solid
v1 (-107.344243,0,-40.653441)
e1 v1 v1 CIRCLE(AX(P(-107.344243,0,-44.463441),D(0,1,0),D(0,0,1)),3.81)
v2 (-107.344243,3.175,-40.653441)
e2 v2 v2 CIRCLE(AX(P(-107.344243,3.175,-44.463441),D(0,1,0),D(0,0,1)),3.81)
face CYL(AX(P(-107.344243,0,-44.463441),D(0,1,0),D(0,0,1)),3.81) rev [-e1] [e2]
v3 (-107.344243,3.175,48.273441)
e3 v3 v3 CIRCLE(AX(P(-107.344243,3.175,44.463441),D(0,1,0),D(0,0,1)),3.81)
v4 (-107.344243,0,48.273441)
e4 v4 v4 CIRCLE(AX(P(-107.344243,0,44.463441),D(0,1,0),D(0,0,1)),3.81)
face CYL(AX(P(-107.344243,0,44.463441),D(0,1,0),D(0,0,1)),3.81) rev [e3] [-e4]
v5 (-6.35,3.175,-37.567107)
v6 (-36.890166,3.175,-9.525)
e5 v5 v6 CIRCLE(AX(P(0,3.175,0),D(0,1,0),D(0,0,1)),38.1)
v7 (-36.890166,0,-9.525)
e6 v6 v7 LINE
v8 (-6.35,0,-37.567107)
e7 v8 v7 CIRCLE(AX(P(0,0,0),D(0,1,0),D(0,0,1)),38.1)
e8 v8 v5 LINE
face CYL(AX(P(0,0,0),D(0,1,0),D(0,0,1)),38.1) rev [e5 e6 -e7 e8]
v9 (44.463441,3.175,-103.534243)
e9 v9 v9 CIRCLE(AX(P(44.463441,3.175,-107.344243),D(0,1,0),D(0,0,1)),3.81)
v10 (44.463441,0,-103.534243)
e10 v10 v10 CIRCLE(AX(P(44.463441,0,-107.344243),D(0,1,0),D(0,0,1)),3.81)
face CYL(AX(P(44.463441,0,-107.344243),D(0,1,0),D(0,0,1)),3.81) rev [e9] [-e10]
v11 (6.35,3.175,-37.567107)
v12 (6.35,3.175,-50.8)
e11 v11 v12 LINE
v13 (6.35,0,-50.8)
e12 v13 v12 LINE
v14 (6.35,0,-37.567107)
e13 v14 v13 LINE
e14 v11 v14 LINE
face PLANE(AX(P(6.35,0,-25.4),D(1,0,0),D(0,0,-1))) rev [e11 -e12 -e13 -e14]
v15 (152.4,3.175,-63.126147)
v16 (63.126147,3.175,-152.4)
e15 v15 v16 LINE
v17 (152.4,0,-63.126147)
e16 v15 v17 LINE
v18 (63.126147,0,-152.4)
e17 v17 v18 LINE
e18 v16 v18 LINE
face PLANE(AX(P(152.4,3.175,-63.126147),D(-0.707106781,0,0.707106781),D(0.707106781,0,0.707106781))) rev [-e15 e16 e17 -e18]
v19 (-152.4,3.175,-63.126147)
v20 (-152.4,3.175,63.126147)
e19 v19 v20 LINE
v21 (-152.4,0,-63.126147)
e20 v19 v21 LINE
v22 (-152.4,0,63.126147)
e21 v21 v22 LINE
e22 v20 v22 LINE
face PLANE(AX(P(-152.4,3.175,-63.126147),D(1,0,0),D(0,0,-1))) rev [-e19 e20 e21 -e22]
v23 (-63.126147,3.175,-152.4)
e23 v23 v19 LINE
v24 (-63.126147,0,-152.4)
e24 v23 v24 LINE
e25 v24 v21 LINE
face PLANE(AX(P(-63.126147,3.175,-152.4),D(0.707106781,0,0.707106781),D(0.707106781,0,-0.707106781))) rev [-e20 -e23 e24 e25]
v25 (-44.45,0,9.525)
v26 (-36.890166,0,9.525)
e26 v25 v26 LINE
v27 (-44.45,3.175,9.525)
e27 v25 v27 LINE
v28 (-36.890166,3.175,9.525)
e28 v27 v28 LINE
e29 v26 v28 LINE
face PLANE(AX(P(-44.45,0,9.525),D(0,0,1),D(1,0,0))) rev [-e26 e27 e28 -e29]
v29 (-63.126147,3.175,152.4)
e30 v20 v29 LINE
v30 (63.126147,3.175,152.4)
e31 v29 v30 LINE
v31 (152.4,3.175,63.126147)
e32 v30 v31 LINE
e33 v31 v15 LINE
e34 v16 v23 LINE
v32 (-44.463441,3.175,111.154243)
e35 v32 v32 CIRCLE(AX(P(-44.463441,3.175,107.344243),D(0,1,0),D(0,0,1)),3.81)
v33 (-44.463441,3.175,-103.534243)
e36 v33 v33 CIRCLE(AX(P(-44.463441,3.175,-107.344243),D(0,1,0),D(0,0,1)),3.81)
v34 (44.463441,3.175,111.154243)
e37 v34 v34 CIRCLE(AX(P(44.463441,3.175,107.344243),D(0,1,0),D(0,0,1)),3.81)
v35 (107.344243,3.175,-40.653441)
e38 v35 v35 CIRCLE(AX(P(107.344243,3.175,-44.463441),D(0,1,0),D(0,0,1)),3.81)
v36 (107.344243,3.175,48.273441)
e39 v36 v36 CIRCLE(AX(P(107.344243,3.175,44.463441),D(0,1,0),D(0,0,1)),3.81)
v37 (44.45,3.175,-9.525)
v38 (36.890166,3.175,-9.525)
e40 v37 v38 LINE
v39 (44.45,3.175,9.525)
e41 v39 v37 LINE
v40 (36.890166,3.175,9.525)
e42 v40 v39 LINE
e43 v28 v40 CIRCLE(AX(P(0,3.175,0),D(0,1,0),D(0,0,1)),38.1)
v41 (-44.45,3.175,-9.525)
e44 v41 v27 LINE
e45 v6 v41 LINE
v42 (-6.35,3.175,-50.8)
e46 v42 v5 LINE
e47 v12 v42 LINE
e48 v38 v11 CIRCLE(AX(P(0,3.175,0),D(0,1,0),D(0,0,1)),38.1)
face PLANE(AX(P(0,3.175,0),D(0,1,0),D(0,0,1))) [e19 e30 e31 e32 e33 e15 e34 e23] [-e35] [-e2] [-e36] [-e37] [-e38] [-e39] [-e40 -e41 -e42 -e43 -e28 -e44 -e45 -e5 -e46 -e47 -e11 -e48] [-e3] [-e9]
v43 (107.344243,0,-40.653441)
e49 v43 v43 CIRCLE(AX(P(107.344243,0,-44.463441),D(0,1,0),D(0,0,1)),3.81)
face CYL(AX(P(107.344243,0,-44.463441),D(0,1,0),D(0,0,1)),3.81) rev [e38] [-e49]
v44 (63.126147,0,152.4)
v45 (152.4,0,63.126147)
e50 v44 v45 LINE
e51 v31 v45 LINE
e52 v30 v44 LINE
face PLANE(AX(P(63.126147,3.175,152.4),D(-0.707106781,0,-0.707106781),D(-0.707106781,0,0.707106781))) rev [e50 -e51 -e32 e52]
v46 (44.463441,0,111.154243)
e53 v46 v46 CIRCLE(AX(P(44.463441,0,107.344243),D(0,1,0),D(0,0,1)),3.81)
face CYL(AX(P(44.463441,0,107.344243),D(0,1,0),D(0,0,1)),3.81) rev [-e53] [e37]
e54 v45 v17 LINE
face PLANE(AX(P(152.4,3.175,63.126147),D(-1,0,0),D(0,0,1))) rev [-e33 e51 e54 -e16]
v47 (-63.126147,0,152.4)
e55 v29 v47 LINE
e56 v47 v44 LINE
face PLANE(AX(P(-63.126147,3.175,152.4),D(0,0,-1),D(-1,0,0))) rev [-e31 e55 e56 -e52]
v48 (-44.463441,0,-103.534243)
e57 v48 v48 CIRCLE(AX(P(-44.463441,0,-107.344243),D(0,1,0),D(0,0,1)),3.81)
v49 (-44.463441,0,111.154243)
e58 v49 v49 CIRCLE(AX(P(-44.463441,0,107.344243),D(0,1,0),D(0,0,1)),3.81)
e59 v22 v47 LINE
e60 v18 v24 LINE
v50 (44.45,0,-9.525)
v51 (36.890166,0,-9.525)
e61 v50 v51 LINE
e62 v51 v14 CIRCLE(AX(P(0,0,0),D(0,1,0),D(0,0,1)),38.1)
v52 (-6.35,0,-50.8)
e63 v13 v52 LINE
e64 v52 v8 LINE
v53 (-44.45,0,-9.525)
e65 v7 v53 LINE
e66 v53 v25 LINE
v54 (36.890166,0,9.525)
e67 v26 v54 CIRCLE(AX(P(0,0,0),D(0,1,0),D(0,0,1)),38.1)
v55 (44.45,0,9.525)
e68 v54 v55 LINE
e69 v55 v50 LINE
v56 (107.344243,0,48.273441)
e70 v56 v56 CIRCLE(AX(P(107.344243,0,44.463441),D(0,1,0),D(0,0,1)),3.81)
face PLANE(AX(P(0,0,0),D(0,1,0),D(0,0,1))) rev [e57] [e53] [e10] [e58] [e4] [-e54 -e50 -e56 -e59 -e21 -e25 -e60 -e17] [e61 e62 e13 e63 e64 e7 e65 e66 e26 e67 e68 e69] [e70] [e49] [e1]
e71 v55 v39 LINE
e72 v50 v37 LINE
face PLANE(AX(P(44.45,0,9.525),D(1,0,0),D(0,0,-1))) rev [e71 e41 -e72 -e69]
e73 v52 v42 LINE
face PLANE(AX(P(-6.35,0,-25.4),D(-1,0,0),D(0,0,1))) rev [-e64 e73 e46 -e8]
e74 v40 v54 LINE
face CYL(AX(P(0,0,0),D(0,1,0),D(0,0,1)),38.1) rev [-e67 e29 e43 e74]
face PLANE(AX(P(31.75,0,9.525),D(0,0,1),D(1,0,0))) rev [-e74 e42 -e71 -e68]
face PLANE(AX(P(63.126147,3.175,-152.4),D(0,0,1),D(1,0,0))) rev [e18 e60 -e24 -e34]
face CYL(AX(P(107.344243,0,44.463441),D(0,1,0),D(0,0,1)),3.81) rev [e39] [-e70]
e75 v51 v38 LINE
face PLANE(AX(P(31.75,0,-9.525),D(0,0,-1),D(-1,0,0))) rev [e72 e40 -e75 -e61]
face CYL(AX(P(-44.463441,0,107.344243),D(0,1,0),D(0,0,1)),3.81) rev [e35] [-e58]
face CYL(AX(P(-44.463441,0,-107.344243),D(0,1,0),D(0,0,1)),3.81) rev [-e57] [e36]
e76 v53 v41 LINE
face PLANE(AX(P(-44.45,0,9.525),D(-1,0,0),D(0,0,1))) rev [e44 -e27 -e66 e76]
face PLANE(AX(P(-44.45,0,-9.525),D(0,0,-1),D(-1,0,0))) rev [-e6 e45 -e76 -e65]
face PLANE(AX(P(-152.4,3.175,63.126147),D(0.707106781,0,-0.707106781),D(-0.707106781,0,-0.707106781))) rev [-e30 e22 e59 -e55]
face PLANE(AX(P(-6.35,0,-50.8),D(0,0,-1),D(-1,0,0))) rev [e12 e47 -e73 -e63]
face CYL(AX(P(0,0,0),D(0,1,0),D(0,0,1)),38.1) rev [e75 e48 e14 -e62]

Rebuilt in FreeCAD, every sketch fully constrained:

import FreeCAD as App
import Part
import Sketcher

V = App.Vector
Q = App.Units.Quantity

doc = App.newDocument("Part")
body = doc.addObject("PartDesign::Body", "Body")

sketch1 = doc.addObject("Sketcher::SketchObject", "Sketch")
body.addObject(sketch1)
sketch1.AttachmentSupport = (doc.XZ_Plane, [""])
sketch1.MapMode = "FlatFace"
sketch1.addGeometry(Part.LineSegment(V(63, -152, 0), V(-63, -152, 0)), False)
sketch1.addGeometry(Part.LineSegment(V(-63, -152, 0), V(-152, -63, 0)), False)
sketch1.addGeometry(Part.LineSegment(V(-152, -63, 0), V(-152, 63, 0)), False)
sketch1.addGeometry(Part.LineSegment(V(-152, 63, 0), V(-63, 152, 0)), False)
sketch1.addGeometry(Part.LineSegment(V(-63, 152, 0), V(63, 152, 0)), False)
sketch1.addGeometry(Part.LineSegment(V(63, 152, 0), V(152, 63, 0)), False)
sketch1.addGeometry(Part.LineSegment(V(152, 63, 0), V(152, -63, 0)), False)
sketch1.addGeometry(Part.LineSegment(V(152, -63, 0), V(63, -152, 0)), False)
sketch1.addConstraint(Sketcher.Constraint("Coincident", 0, 2, 1, 1))
sketch1.addConstraint(Sketcher.Constraint("Coincident", 1, 2, 2, 1))
sketch1.addConstraint(Sketcher.Constraint("Coincident", 2, 2, 3, 1))
sketch1.addConstraint(Sketcher.Constraint("Coincident", 3, 2, 4, 1))
sketch1.addConstraint(Sketcher.Constraint("Coincident", 4, 2, 5, 1))
sketch1.addConstraint(Sketcher.Constraint("Coincident", 5, 2, 6, 1))
sketch1.addConstraint(Sketcher.Constraint("Coincident", 6, 2, 7, 1))
sketch1.addConstraint(Sketcher.Constraint("Coincident", 7, 2, 0, 1))
sketch1.addConstraint(Sketcher.Constraint("Horizontal", 0))
sketch1.addConstraint(Sketcher.Constraint("Vertical", 2))
sketch1.addConstraint(Sketcher.Constraint("Horizontal", 4))
sketch1.addConstraint(Sketcher.Constraint("Vertical", 6))
sketch1.addConstraint(Sketcher.Constraint("Symmetric", 0, 2, 4, 2, -1, 1))
sketch1.addConstraint(Sketcher.Constraint("Symmetric", 1, 2, 5, 2, -1, 1))
sketch1.addConstraint(Sketcher.Constraint("Perpendicular", 1, 3))
sketch1.addConstraint(Sketcher.Constraint("Perpendicular", 5, 7))
sketch1.addConstraint(Sketcher.Constraint("Horizontal", 2, 2, 5, 2))
sketch1.addConstraint(Sketcher.Constraint("Horizontal", 1, 2, 6, 2))
sketch1.addConstraint(Sketcher.Constraint("Vertical", 0, 2, 3, 2))
sketch1.addConstraint(Sketcher.Constraint("Equal", 4, 2))
sketch1.addConstraint(Sketcher.Constraint("DistanceY", 0, 2, -1, 1, Q("6 in")))
sketch1.addConstraint(Sketcher.Constraint("DistanceX", 0, 2, 0, 1, 126.252294))
pad1 = doc.addObject("PartDesign::Pad", "Pad")
body.addObject(pad1)
pad1.Profile = sketch1
pad1.Length = Q("0.125 in")
pad1.Reversed = True

sketch2 = doc.addObject("Sketcher::SketchObject", "Sketch001")
body.addObject(sketch2)
sketch2.AttachmentSupport = (doc.XZ_Plane, [""])
sketch2.MapMode = "FlatFace"
sketch2.AttachmentOffset = App.Placement(V(0, 0, -0.125 * 25.4), App.Rotation())
sketch2.addGeometry(Part.Circle(V(0, 0, 0), V(0, 0, 1), 38), False)
sketch2.addConstraint(Sketcher.Constraint("Coincident", 0, 3, -1, 1))
sketch2.addConstraint(Sketcher.Constraint("Diameter", 0, Q("3 in")))
pocket1 = doc.addObject("PartDesign::Pocket", "Pocket")
body.addObject(pocket1)
pocket1.Profile = sketch2
pocket1.Type = "ThroughAll"
pocket1.Midplane = True

sketch3 = doc.addObject("Sketcher::SketchObject", "Sketch002")
body.addObject(sketch3)
sketch3.AttachmentSupport = (doc.XZ_Plane, [""])
sketch3.MapMode = "FlatFace"
sketch3.AttachmentOffset = App.Placement(V(0, 0, -0.125 * 25.4), App.Rotation())
sketch3.addGeometry(Part.Circle(V(44.5, 107.3, 0), V(0, 0, 1), 3.8), False)
sketch3.addGeometry(Part.Circle(V(-44.5, 107.3, 0), V(0, 0, 1), 3.8), False)
sketch3.addGeometry(Part.Circle(V(-107.3, 44.5, 0), V(0, 0, 1), 3.8), False)
sketch3.addGeometry(Part.Circle(V(-107.3, -44.5, 0), V(0, 0, 1), 3.8), False)
sketch3.addGeometry(Part.Circle(V(-44.5, -107.3, 0), V(0, 0, 1), 3.8), False)
sketch3.addGeometry(Part.Circle(V(44.5, -107.3, 0), V(0, 0, 1), 3.8), False)
sketch3.addGeometry(Part.Circle(V(107.3, -44.5, 0), V(0, 0, 1), 3.8), False)
sketch3.addGeometry(Part.Circle(V(107.3, 44.5, 0), V(0, 0, 1), 3.8), False)
sketch3.addConstraint(Sketcher.Constraint("Equal", 0, 1))
sketch3.addConstraint(Sketcher.Constraint("Equal", 1, 2))
sketch3.addConstraint(Sketcher.Constraint("Equal", 2, 3))
sketch3.addConstraint(Sketcher.Constraint("Equal", 3, 4))
sketch3.addConstraint(Sketcher.Constraint("Equal", 4, 5))
sketch3.addConstraint(Sketcher.Constraint("Equal", 5, 6))
sketch3.addConstraint(Sketcher.Constraint("Equal", 6, 7))
sketch3.addConstraint(Sketcher.Constraint("Symmetric", 0, 3, 4, 3, -1, 1))
sketch3.addConstraint(Sketcher.Constraint("Symmetric", 1, 3, 5, 3, -1, 1))
sketch3.addConstraint(Sketcher.Constraint("Symmetric", 2, 3, 6, 3, -1, 1))
sketch3.addConstraint(Sketcher.Constraint("Symmetric", 3, 3, 7, 3, -1, 1))
sketch3.addConstraint(Sketcher.Constraint("Symmetric", 0, 3, 1, 3, -2))
sketch3.addConstraint(Sketcher.Constraint("Symmetric", 3, 3, 6, 3, -2))
sketch3.addConstraint(Sketcher.Constraint("Diameter", 0, Q("0.3 in")))
sketch3.addConstraint(Sketcher.Constraint("DistanceX", 2, 3, 1, 3, 62.880802))
sketch3.addConstraint(Sketcher.Constraint("DistanceY", 2, 3, 1, 3, 62.880802))
sketch3.addConstraint(Sketcher.Constraint("DistanceX", -1, 1, 0, 3, 44.463441))
sketch3.addConstraint(Sketcher.Constraint("DistanceY", -1, 1, 2, 3, 44.463441))
pocket2 = doc.addObject("PartDesign::Pocket", "Pocket001")
body.addObject(pocket2)
pocket2.Profile = sketch3
pocket2.Type = "ThroughAll"
pocket2.Reversed = True

sketch4 = doc.addObject("Sketcher::SketchObject", "Sketch003")
body.addObject(sketch4)
sketch4.AttachmentSupport = (doc.XZ_Plane, [""])
sketch4.MapMode = "FlatFace"
sketch4.AttachmentOffset = App.Placement(V(0, 0, -0.125 * 25.4), App.Rotation())
sketch4.addGeometry(Part.LineSegment(V(-44, -10, 0), V(-44, 10, 0)), False)
sketch4.addGeometry(Part.LineSegment(V(-44, 10, 0), V(-32, 10, 0)), False)
sketch4.addGeometry(Part.LineSegment(V(-32, 10, 0), V(-32, -10, 0)), False)
sketch4.addGeometry(Part.LineSegment(V(-32, -10, 0), V(-44, -10, 0)), False)
sketch4.addGeometry(Part.LineSegment(V(32, -10, 0), V(32, 10, 0)), False)
sketch4.addGeometry(Part.LineSegment(V(32, 10, 0), V(44, 10, 0)), False)
sketch4.addGeometry(Part.LineSegment(V(44, 10, 0), V(44, -10, 0)), False)
sketch4.addGeometry(Part.LineSegment(V(44, -10, 0), V(32, -10, 0)), False)
sketch4.addGeometry(Part.LineSegment(V(-6, -51, 0), V(-6, -25, 0)), False)
sketch4.addGeometry(Part.LineSegment(V(-6, -25, 0), V(6, -25, 0)), False)
sketch4.addGeometry(Part.LineSegment(V(6, -25, 0), V(6, -51, 0)), False)
sketch4.addGeometry(Part.LineSegment(V(6, -51, 0), V(-6, -51, 0)), False)
sketch4.addConstraint(Sketcher.Constraint("Coincident", 0, 2, 1, 1))
sketch4.addConstraint(Sketcher.Constraint("Coincident", 1, 2, 2, 1))
sketch4.addConstraint(Sketcher.Constraint("Coincident", 2, 2, 3, 1))
sketch4.addConstraint(Sketcher.Constraint("Coincident", 3, 2, 0, 1))
sketch4.addConstraint(Sketcher.Constraint("Coincident", 4, 2, 5, 1))
sketch4.addConstraint(Sketcher.Constraint("Coincident", 5, 2, 6, 1))
sketch4.addConstraint(Sketcher.Constraint("Coincident", 6, 2, 7, 1))
sketch4.addConstraint(Sketcher.Constraint("Coincident", 7, 2, 4, 1))
sketch4.addConstraint(Sketcher.Constraint("Coincident", 8, 2, 9, 1))
sketch4.addConstraint(Sketcher.Constraint("Coincident", 9, 2, 10, 1))
sketch4.addConstraint(Sketcher.Constraint("Coincident", 10, 2, 11, 1))
sketch4.addConstraint(Sketcher.Constraint("Coincident", 11, 2, 8, 1))
sketch4.addConstraint(Sketcher.Constraint("Vertical", 0))
sketch4.addConstraint(Sketcher.Constraint("Horizontal", 1))
sketch4.addConstraint(Sketcher.Constraint("Vertical", 2))
sketch4.addConstraint(Sketcher.Constraint("Horizontal", 3))
sketch4.addConstraint(Sketcher.Constraint("Vertical", 4))
sketch4.addConstraint(Sketcher.Constraint("Horizontal", 5))
sketch4.addConstraint(Sketcher.Constraint("Vertical", 6))
sketch4.addConstraint(Sketcher.Constraint("Horizontal", 7))
sketch4.addConstraint(Sketcher.Constraint("Vertical", 8))
sketch4.addConstraint(Sketcher.Constraint("Horizontal", 9))
sketch4.addConstraint(Sketcher.Constraint("Vertical", 10))
sketch4.addConstraint(Sketcher.Constraint("Horizontal", 11))
sketch4.addConstraint(Sketcher.Constraint("Symmetric", 2, 2, 4, 2, -1, 1))
sketch4.addConstraint(Sketcher.Constraint("Symmetric", 0, 2, 6, 2, -1, 1))
sketch4.addConstraint(Sketcher.Constraint("Horizontal", 1, 2, 4, 2))
sketch4.addConstraint(Sketcher.Constraint("Equal", 7, 9))
sketch4.addConstraint(Sketcher.Constraint("DistanceY", 8, 1, 8, 2, Q("1 in")))
sketch4.addConstraint(Sketcher.Constraint("DistanceX", 1, 1, 1, 2, Q("0.5 in")))
sketch4.addConstraint(Sketcher.Constraint("DistanceY", 8, 2, -1, 1, Q("1 in")))
sketch4.addConstraint(Sketcher.Constraint("DistanceX", 0, 2, 4, 2, Q("3 in")))
sketch4.addConstraint(Sketcher.Constraint("DistanceX", 2, 2, 8, 2, Q("1 in")))
sketch4.addConstraint(Sketcher.Constraint("DistanceY", 0, 1, 0, 2, Q("0.75 in")))
pocket3 = doc.addObject("PartDesign::Pocket", "Pocket002")
body.addObject(pocket3)
pocket3.Profile = sketch4
pocket3.Type = "ThroughAll"
pocket3.Reversed = True

doc.recompute()
